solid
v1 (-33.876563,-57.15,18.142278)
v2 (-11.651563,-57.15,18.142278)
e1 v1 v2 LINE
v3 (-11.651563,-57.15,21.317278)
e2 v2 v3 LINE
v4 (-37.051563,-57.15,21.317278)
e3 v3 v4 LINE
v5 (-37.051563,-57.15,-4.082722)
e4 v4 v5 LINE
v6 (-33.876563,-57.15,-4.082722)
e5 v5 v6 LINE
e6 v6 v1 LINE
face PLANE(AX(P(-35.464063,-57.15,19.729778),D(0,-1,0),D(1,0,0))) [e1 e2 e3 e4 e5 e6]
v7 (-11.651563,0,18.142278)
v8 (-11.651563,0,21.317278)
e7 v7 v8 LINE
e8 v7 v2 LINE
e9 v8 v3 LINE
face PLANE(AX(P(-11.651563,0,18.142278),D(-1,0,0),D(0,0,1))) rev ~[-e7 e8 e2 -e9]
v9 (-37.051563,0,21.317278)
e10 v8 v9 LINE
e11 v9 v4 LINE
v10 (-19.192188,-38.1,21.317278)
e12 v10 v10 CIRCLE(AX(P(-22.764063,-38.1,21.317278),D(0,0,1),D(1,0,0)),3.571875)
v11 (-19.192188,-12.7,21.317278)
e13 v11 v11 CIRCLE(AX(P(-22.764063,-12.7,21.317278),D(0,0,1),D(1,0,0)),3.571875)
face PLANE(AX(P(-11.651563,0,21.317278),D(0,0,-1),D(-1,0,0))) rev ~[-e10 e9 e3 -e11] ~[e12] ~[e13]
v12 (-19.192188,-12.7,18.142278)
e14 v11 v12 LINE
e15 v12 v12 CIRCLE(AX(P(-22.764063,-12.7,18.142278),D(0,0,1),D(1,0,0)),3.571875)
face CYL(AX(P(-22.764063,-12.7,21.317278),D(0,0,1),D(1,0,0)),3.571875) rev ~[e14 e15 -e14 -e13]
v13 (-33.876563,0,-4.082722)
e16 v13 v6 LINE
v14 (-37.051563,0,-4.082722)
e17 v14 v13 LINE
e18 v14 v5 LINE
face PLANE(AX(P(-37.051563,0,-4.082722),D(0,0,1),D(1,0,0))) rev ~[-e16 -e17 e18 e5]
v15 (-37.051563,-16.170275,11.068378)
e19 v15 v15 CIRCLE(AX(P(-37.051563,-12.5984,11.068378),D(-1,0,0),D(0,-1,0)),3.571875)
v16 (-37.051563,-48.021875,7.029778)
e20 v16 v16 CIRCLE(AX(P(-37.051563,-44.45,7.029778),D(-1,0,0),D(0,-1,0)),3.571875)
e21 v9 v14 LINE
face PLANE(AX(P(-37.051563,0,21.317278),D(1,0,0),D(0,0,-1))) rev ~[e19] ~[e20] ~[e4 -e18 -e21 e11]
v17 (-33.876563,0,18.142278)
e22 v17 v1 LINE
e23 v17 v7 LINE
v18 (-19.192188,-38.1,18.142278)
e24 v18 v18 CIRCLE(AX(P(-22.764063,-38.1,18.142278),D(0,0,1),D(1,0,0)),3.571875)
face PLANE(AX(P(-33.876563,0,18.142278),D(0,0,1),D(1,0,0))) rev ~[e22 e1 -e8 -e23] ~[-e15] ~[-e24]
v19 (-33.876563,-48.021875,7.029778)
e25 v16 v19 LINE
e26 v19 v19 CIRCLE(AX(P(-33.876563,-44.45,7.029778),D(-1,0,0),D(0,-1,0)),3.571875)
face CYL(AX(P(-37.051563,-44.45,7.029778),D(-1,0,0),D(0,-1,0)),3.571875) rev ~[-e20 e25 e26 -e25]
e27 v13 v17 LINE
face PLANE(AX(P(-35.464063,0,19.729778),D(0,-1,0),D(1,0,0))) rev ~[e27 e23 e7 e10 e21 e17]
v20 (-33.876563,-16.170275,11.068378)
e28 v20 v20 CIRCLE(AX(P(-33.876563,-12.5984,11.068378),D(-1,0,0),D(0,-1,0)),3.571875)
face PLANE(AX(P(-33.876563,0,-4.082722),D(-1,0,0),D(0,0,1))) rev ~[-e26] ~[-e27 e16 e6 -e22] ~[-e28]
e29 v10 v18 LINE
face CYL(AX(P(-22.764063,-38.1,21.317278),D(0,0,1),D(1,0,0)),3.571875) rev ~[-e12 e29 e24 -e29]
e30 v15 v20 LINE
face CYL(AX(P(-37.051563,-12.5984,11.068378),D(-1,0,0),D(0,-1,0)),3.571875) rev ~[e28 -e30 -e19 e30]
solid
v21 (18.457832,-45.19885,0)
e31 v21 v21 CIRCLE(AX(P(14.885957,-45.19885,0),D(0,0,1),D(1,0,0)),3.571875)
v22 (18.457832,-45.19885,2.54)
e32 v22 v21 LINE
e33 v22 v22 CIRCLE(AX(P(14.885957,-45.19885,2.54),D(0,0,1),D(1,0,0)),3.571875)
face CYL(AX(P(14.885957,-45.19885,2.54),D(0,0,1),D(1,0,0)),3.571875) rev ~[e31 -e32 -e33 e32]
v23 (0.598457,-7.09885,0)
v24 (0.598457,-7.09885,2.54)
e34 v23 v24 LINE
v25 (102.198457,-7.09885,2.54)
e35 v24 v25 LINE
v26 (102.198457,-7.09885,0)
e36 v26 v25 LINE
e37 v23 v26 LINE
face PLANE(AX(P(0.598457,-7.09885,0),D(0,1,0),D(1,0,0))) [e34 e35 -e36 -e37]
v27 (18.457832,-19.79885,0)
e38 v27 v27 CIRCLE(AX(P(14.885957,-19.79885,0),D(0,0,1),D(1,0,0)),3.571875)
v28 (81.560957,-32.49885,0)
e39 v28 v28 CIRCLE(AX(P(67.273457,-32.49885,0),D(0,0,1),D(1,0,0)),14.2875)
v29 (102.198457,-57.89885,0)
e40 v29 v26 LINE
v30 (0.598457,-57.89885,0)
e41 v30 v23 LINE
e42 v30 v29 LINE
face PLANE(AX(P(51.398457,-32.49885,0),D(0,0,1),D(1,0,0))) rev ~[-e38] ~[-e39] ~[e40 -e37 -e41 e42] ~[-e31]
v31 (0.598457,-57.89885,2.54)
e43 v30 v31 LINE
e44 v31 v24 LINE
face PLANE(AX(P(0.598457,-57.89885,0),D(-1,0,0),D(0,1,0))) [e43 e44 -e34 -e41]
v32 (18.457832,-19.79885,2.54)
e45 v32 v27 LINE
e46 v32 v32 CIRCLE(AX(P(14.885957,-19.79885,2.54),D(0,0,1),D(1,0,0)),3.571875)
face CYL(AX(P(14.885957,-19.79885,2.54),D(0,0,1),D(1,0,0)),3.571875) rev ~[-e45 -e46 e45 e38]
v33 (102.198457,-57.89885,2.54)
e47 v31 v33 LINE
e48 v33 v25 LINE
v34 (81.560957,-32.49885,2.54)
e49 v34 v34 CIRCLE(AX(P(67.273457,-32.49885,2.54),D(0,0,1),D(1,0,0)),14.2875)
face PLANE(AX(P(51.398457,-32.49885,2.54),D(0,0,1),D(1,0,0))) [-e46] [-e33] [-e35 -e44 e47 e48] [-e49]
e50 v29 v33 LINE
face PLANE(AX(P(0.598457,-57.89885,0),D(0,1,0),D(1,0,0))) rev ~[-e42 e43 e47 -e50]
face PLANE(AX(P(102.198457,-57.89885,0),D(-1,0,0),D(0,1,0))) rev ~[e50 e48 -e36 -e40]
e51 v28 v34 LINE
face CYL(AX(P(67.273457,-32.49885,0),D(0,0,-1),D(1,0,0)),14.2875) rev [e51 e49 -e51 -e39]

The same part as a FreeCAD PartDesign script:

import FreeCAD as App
import Part
import Sketcher

V = App.Vector
Q = App.Units.Quantity


def add_polygon(sketch, points):
    """Adds a closed chain of lines whose ends are joined by coincident constraints."""
    first, n = sketch.GeometryCount, len(points)
    for a, b in zip(points, points[1:] + points[:1]):
        sketch.addGeometry(Part.LineSegment(App.Vector(*a, 0), App.Vector(*b, 0)), False)
    for i in range(n):
        sketch.addConstraint(Sketcher.Constraint("Coincident", first + i, 2, first + (i + 1) % n, 1))

doc = App.newDocument("Part")
body = doc.addObject("PartDesign::Body", "Body")

# Sketch on XY plane
sketch1 = body.newObject("Sketcher::SketchObject", "Sketch")
sketch1.AttachmentSupport = (doc.getObject("XY_Plane"), [""])
sketch1.MapMode = "FlatFace"
add_polygon(sketch1, [(1, -7), (1, -58), (102, -58), (102, -7)])  # lines 0-3
sketch1.addGeometry(Part.Circle(V(67, -32, 0), V(0, 0, 1), 14), False)  # 4
sketch1.addConstraint([
    Sketcher.Constraint("Vertical", 0),
    Sketcher.Constraint("Horizontal", 1),
    Sketcher.Constraint("Vertical", 2),
    Sketcher.Constraint("Horizontal", 3),
    Sketcher.Constraint("DistanceX", 1, 1, 1, 2, Q("4 in")),
    Sketcher.Constraint("DistanceY", 0, 2, 0, 1, Q("2 in")),
    Sketcher.Constraint("Diameter", 4, Q("1.125 in")),
    Sketcher.Constraint("DistanceY", 0, 2, 4, 3, Q("1 in")),
    Sketcher.Constraint("DistanceX", 0, 2, 4, 3, Q("2.625 in")),
    Sketcher.Constraint("DistanceY", 4, 3, -1, 1, 32.49885),
    Sketcher.Constraint("DistanceX", -1, 1, 4, 3, 67.273457),
])
pad1 = body.newObject("PartDesign::Pad", "Pad")
pad1.Profile = sketch1
pad1.Length = Q("0.1 in")

# Sketch on XY plane
sketch2 = body.newObject("Sketcher::SketchObject", "Sketch001")
sketch2.AttachmentSupport = (doc.getObject("XY_Plane"), [""])
sketch2.MapMode = "FlatFace"
sketch2.AttachmentOffset = App.Placement(V(0, 0, 0.1 * 25.4), App.Rotation())
sketch2.addGeometry([
    Part.Circle(V(14.9, -19.8, 0), V(0, 0, 1), 3.6),
    Part.Circle(V(14.9, -45.2, 0), V(0, 0, 1), 3.6),
], False)
sketch2.addConstraint([
    Sketcher.Constraint("Equal", 0, 1),
    Sketcher.Constraint("Vertical", 0, 3, 1, 3),
    Sketcher.Constraint("Diameter", 0, Q("0.28125 in")),
    Sketcher.Constraint("DistanceY", 1, 3, 0, 3, Q("1 in")),
    Sketcher.Constraint("DistanceY", 0, 3, -1, 1, 19.79885),
    Sketcher.Constraint("DistanceX", -1, 1, 0, 3, 14.885957),
])
pocket1 = body.newObject("PartDesign::Pocket", "Pocket")
pocket1.Profile = sketch2
pocket1.Length = Q("1 in")
body2 = doc.addObject("PartDesign::Body", "Body001")

# Sketch on XZ plane
sketch3 = body2.newObject("Sketcher::SketchObject", "Sketch002")
sketch3.AttachmentSupport = (doc.getObject("XZ_Plane001"), [""])
sketch3.MapMode = "FlatFace"
add_polygon(sketch3, [(-37.1, 21.3), (-37.1, -4.1), (-33.9, -4.1), (-33.9, 18.1), (-11.7, 18.1), (-11.7, 21.3)])  # lines 0-5
sketch3.addConstraint([
    Sketcher.Constraint("Vertical", 0),
    Sketcher.Constraint("Horizontal", 1),
    Sketcher.Constraint("Vertical", 2),
    Sketcher.Constraint("Horizontal", 3),
    Sketcher.Constraint("Vertical", 4),
    Sketcher.Constraint("Horizontal", 5),
    Sketcher.Constraint("Equal", 5, 0),
    Sketcher.Constraint("Equal", 3, 2),
    Sketcher.Constraint("DistanceX", 5, 2, 5, 1, Q("1 in")),
    Sketcher.Constraint("DistanceX", 1, 1, 1, 2, Q("0.125 in")),
    Sketcher.Constraint("DistanceY", -1, 1, 2, 2, 18.142278),
    Sketcher.Constraint("DistanceX", 0, 2, -1, 1, 37.051563),
])
pad2 = body2.newObject("PartDesign::Pad", "Pad001")
pad2.Profile = sketch3
pad2.Length = Q("2.25 in")

# Sketch on XY plane
sketch4 = body2.newObject("Sketcher::SketchObject", "Sketch003")
sketch4.AttachmentSupport = (doc.getObject("XY_Plane001"), [""])
sketch4.MapMode = "FlatFace"
sketch4.AttachmentOffset = App.Placement(V(0, 0, 21.317278), App.Rotation())
sketch4.addGeometry([
    Part.Circle(V(-22.8, -12.7, 0), V(0, 0, 1), 3.6),
    Part.Circle(V(-22.8, -38.1, 0), V(0, 0, 1), 3.6),
], False)
sketch4.addConstraint([
    Sketcher.Constraint("Equal", 0, 1),
    Sketcher.Constraint("Vertical", 0, 3, 1, 3),
    Sketcher.Constraint("Diameter", 0, Q("0.28125 in")),
    Sketcher.Constraint("DistanceY", 1, 3, 0, 3, Q("1 in")),
    Sketcher.Constraint("DistanceY", 0, 3, -1, 1, Q("0.5 in")),
    Sketcher.Constraint("DistanceX", 0, 3, -1, 1, 22.764063),
])
pocket2 = body2.newObject("PartDesign::Pocket", "Pocket001")
pocket2.Profile = sketch4
pocket2.Length = Q("1 in")

# Sketch on YZ plane
sketch5 = body2.newObject("Sketcher::SketchObject", "Sketch004")
sketch5.AttachmentSupport = (doc.getObject("YZ_Plane001"), [""])
sketch5.MapMode = "FlatFace"
sketch5.AttachmentOffset = App.Placement(V(0, 0, -37.051563), App.Rotation())
sketch5.addGeometry([
    Part.Circle(V(-12.6, 11.1, 0), V(0, 0, 1), 3.6),
    Part.Circle(V(-44.5, 7, 0), V(0, 0, 1), 3.6),
], False)
sketch5.addConstraint([
    Sketcher.Constraint("Equal", 0, 1),
    Sketcher.Constraint("Diameter", 0, Q("0.28125 in")),
    Sketcher.Constraint("DistanceX", 1, 3, -1, 1, Q("1.75 in")),
    Sketcher.Constraint("DistanceX", 0, 3, -1, 1, Q("0.496 in")),
    Sketcher.Constraint("DistanceY", 1, 3, 0, 3, Q("0.159 in")),
    Sketcher.Constraint("DistanceY", -1, 1, 1, 3, 7.029778),
])
pocket3 = body2.newObject("PartDesign::Pocket", "Pocket002")
pocket3.Profile = sketch5
pocket3.Length = Q("0.2 in")
pocket3.Reversed = True

doc.recompute()
